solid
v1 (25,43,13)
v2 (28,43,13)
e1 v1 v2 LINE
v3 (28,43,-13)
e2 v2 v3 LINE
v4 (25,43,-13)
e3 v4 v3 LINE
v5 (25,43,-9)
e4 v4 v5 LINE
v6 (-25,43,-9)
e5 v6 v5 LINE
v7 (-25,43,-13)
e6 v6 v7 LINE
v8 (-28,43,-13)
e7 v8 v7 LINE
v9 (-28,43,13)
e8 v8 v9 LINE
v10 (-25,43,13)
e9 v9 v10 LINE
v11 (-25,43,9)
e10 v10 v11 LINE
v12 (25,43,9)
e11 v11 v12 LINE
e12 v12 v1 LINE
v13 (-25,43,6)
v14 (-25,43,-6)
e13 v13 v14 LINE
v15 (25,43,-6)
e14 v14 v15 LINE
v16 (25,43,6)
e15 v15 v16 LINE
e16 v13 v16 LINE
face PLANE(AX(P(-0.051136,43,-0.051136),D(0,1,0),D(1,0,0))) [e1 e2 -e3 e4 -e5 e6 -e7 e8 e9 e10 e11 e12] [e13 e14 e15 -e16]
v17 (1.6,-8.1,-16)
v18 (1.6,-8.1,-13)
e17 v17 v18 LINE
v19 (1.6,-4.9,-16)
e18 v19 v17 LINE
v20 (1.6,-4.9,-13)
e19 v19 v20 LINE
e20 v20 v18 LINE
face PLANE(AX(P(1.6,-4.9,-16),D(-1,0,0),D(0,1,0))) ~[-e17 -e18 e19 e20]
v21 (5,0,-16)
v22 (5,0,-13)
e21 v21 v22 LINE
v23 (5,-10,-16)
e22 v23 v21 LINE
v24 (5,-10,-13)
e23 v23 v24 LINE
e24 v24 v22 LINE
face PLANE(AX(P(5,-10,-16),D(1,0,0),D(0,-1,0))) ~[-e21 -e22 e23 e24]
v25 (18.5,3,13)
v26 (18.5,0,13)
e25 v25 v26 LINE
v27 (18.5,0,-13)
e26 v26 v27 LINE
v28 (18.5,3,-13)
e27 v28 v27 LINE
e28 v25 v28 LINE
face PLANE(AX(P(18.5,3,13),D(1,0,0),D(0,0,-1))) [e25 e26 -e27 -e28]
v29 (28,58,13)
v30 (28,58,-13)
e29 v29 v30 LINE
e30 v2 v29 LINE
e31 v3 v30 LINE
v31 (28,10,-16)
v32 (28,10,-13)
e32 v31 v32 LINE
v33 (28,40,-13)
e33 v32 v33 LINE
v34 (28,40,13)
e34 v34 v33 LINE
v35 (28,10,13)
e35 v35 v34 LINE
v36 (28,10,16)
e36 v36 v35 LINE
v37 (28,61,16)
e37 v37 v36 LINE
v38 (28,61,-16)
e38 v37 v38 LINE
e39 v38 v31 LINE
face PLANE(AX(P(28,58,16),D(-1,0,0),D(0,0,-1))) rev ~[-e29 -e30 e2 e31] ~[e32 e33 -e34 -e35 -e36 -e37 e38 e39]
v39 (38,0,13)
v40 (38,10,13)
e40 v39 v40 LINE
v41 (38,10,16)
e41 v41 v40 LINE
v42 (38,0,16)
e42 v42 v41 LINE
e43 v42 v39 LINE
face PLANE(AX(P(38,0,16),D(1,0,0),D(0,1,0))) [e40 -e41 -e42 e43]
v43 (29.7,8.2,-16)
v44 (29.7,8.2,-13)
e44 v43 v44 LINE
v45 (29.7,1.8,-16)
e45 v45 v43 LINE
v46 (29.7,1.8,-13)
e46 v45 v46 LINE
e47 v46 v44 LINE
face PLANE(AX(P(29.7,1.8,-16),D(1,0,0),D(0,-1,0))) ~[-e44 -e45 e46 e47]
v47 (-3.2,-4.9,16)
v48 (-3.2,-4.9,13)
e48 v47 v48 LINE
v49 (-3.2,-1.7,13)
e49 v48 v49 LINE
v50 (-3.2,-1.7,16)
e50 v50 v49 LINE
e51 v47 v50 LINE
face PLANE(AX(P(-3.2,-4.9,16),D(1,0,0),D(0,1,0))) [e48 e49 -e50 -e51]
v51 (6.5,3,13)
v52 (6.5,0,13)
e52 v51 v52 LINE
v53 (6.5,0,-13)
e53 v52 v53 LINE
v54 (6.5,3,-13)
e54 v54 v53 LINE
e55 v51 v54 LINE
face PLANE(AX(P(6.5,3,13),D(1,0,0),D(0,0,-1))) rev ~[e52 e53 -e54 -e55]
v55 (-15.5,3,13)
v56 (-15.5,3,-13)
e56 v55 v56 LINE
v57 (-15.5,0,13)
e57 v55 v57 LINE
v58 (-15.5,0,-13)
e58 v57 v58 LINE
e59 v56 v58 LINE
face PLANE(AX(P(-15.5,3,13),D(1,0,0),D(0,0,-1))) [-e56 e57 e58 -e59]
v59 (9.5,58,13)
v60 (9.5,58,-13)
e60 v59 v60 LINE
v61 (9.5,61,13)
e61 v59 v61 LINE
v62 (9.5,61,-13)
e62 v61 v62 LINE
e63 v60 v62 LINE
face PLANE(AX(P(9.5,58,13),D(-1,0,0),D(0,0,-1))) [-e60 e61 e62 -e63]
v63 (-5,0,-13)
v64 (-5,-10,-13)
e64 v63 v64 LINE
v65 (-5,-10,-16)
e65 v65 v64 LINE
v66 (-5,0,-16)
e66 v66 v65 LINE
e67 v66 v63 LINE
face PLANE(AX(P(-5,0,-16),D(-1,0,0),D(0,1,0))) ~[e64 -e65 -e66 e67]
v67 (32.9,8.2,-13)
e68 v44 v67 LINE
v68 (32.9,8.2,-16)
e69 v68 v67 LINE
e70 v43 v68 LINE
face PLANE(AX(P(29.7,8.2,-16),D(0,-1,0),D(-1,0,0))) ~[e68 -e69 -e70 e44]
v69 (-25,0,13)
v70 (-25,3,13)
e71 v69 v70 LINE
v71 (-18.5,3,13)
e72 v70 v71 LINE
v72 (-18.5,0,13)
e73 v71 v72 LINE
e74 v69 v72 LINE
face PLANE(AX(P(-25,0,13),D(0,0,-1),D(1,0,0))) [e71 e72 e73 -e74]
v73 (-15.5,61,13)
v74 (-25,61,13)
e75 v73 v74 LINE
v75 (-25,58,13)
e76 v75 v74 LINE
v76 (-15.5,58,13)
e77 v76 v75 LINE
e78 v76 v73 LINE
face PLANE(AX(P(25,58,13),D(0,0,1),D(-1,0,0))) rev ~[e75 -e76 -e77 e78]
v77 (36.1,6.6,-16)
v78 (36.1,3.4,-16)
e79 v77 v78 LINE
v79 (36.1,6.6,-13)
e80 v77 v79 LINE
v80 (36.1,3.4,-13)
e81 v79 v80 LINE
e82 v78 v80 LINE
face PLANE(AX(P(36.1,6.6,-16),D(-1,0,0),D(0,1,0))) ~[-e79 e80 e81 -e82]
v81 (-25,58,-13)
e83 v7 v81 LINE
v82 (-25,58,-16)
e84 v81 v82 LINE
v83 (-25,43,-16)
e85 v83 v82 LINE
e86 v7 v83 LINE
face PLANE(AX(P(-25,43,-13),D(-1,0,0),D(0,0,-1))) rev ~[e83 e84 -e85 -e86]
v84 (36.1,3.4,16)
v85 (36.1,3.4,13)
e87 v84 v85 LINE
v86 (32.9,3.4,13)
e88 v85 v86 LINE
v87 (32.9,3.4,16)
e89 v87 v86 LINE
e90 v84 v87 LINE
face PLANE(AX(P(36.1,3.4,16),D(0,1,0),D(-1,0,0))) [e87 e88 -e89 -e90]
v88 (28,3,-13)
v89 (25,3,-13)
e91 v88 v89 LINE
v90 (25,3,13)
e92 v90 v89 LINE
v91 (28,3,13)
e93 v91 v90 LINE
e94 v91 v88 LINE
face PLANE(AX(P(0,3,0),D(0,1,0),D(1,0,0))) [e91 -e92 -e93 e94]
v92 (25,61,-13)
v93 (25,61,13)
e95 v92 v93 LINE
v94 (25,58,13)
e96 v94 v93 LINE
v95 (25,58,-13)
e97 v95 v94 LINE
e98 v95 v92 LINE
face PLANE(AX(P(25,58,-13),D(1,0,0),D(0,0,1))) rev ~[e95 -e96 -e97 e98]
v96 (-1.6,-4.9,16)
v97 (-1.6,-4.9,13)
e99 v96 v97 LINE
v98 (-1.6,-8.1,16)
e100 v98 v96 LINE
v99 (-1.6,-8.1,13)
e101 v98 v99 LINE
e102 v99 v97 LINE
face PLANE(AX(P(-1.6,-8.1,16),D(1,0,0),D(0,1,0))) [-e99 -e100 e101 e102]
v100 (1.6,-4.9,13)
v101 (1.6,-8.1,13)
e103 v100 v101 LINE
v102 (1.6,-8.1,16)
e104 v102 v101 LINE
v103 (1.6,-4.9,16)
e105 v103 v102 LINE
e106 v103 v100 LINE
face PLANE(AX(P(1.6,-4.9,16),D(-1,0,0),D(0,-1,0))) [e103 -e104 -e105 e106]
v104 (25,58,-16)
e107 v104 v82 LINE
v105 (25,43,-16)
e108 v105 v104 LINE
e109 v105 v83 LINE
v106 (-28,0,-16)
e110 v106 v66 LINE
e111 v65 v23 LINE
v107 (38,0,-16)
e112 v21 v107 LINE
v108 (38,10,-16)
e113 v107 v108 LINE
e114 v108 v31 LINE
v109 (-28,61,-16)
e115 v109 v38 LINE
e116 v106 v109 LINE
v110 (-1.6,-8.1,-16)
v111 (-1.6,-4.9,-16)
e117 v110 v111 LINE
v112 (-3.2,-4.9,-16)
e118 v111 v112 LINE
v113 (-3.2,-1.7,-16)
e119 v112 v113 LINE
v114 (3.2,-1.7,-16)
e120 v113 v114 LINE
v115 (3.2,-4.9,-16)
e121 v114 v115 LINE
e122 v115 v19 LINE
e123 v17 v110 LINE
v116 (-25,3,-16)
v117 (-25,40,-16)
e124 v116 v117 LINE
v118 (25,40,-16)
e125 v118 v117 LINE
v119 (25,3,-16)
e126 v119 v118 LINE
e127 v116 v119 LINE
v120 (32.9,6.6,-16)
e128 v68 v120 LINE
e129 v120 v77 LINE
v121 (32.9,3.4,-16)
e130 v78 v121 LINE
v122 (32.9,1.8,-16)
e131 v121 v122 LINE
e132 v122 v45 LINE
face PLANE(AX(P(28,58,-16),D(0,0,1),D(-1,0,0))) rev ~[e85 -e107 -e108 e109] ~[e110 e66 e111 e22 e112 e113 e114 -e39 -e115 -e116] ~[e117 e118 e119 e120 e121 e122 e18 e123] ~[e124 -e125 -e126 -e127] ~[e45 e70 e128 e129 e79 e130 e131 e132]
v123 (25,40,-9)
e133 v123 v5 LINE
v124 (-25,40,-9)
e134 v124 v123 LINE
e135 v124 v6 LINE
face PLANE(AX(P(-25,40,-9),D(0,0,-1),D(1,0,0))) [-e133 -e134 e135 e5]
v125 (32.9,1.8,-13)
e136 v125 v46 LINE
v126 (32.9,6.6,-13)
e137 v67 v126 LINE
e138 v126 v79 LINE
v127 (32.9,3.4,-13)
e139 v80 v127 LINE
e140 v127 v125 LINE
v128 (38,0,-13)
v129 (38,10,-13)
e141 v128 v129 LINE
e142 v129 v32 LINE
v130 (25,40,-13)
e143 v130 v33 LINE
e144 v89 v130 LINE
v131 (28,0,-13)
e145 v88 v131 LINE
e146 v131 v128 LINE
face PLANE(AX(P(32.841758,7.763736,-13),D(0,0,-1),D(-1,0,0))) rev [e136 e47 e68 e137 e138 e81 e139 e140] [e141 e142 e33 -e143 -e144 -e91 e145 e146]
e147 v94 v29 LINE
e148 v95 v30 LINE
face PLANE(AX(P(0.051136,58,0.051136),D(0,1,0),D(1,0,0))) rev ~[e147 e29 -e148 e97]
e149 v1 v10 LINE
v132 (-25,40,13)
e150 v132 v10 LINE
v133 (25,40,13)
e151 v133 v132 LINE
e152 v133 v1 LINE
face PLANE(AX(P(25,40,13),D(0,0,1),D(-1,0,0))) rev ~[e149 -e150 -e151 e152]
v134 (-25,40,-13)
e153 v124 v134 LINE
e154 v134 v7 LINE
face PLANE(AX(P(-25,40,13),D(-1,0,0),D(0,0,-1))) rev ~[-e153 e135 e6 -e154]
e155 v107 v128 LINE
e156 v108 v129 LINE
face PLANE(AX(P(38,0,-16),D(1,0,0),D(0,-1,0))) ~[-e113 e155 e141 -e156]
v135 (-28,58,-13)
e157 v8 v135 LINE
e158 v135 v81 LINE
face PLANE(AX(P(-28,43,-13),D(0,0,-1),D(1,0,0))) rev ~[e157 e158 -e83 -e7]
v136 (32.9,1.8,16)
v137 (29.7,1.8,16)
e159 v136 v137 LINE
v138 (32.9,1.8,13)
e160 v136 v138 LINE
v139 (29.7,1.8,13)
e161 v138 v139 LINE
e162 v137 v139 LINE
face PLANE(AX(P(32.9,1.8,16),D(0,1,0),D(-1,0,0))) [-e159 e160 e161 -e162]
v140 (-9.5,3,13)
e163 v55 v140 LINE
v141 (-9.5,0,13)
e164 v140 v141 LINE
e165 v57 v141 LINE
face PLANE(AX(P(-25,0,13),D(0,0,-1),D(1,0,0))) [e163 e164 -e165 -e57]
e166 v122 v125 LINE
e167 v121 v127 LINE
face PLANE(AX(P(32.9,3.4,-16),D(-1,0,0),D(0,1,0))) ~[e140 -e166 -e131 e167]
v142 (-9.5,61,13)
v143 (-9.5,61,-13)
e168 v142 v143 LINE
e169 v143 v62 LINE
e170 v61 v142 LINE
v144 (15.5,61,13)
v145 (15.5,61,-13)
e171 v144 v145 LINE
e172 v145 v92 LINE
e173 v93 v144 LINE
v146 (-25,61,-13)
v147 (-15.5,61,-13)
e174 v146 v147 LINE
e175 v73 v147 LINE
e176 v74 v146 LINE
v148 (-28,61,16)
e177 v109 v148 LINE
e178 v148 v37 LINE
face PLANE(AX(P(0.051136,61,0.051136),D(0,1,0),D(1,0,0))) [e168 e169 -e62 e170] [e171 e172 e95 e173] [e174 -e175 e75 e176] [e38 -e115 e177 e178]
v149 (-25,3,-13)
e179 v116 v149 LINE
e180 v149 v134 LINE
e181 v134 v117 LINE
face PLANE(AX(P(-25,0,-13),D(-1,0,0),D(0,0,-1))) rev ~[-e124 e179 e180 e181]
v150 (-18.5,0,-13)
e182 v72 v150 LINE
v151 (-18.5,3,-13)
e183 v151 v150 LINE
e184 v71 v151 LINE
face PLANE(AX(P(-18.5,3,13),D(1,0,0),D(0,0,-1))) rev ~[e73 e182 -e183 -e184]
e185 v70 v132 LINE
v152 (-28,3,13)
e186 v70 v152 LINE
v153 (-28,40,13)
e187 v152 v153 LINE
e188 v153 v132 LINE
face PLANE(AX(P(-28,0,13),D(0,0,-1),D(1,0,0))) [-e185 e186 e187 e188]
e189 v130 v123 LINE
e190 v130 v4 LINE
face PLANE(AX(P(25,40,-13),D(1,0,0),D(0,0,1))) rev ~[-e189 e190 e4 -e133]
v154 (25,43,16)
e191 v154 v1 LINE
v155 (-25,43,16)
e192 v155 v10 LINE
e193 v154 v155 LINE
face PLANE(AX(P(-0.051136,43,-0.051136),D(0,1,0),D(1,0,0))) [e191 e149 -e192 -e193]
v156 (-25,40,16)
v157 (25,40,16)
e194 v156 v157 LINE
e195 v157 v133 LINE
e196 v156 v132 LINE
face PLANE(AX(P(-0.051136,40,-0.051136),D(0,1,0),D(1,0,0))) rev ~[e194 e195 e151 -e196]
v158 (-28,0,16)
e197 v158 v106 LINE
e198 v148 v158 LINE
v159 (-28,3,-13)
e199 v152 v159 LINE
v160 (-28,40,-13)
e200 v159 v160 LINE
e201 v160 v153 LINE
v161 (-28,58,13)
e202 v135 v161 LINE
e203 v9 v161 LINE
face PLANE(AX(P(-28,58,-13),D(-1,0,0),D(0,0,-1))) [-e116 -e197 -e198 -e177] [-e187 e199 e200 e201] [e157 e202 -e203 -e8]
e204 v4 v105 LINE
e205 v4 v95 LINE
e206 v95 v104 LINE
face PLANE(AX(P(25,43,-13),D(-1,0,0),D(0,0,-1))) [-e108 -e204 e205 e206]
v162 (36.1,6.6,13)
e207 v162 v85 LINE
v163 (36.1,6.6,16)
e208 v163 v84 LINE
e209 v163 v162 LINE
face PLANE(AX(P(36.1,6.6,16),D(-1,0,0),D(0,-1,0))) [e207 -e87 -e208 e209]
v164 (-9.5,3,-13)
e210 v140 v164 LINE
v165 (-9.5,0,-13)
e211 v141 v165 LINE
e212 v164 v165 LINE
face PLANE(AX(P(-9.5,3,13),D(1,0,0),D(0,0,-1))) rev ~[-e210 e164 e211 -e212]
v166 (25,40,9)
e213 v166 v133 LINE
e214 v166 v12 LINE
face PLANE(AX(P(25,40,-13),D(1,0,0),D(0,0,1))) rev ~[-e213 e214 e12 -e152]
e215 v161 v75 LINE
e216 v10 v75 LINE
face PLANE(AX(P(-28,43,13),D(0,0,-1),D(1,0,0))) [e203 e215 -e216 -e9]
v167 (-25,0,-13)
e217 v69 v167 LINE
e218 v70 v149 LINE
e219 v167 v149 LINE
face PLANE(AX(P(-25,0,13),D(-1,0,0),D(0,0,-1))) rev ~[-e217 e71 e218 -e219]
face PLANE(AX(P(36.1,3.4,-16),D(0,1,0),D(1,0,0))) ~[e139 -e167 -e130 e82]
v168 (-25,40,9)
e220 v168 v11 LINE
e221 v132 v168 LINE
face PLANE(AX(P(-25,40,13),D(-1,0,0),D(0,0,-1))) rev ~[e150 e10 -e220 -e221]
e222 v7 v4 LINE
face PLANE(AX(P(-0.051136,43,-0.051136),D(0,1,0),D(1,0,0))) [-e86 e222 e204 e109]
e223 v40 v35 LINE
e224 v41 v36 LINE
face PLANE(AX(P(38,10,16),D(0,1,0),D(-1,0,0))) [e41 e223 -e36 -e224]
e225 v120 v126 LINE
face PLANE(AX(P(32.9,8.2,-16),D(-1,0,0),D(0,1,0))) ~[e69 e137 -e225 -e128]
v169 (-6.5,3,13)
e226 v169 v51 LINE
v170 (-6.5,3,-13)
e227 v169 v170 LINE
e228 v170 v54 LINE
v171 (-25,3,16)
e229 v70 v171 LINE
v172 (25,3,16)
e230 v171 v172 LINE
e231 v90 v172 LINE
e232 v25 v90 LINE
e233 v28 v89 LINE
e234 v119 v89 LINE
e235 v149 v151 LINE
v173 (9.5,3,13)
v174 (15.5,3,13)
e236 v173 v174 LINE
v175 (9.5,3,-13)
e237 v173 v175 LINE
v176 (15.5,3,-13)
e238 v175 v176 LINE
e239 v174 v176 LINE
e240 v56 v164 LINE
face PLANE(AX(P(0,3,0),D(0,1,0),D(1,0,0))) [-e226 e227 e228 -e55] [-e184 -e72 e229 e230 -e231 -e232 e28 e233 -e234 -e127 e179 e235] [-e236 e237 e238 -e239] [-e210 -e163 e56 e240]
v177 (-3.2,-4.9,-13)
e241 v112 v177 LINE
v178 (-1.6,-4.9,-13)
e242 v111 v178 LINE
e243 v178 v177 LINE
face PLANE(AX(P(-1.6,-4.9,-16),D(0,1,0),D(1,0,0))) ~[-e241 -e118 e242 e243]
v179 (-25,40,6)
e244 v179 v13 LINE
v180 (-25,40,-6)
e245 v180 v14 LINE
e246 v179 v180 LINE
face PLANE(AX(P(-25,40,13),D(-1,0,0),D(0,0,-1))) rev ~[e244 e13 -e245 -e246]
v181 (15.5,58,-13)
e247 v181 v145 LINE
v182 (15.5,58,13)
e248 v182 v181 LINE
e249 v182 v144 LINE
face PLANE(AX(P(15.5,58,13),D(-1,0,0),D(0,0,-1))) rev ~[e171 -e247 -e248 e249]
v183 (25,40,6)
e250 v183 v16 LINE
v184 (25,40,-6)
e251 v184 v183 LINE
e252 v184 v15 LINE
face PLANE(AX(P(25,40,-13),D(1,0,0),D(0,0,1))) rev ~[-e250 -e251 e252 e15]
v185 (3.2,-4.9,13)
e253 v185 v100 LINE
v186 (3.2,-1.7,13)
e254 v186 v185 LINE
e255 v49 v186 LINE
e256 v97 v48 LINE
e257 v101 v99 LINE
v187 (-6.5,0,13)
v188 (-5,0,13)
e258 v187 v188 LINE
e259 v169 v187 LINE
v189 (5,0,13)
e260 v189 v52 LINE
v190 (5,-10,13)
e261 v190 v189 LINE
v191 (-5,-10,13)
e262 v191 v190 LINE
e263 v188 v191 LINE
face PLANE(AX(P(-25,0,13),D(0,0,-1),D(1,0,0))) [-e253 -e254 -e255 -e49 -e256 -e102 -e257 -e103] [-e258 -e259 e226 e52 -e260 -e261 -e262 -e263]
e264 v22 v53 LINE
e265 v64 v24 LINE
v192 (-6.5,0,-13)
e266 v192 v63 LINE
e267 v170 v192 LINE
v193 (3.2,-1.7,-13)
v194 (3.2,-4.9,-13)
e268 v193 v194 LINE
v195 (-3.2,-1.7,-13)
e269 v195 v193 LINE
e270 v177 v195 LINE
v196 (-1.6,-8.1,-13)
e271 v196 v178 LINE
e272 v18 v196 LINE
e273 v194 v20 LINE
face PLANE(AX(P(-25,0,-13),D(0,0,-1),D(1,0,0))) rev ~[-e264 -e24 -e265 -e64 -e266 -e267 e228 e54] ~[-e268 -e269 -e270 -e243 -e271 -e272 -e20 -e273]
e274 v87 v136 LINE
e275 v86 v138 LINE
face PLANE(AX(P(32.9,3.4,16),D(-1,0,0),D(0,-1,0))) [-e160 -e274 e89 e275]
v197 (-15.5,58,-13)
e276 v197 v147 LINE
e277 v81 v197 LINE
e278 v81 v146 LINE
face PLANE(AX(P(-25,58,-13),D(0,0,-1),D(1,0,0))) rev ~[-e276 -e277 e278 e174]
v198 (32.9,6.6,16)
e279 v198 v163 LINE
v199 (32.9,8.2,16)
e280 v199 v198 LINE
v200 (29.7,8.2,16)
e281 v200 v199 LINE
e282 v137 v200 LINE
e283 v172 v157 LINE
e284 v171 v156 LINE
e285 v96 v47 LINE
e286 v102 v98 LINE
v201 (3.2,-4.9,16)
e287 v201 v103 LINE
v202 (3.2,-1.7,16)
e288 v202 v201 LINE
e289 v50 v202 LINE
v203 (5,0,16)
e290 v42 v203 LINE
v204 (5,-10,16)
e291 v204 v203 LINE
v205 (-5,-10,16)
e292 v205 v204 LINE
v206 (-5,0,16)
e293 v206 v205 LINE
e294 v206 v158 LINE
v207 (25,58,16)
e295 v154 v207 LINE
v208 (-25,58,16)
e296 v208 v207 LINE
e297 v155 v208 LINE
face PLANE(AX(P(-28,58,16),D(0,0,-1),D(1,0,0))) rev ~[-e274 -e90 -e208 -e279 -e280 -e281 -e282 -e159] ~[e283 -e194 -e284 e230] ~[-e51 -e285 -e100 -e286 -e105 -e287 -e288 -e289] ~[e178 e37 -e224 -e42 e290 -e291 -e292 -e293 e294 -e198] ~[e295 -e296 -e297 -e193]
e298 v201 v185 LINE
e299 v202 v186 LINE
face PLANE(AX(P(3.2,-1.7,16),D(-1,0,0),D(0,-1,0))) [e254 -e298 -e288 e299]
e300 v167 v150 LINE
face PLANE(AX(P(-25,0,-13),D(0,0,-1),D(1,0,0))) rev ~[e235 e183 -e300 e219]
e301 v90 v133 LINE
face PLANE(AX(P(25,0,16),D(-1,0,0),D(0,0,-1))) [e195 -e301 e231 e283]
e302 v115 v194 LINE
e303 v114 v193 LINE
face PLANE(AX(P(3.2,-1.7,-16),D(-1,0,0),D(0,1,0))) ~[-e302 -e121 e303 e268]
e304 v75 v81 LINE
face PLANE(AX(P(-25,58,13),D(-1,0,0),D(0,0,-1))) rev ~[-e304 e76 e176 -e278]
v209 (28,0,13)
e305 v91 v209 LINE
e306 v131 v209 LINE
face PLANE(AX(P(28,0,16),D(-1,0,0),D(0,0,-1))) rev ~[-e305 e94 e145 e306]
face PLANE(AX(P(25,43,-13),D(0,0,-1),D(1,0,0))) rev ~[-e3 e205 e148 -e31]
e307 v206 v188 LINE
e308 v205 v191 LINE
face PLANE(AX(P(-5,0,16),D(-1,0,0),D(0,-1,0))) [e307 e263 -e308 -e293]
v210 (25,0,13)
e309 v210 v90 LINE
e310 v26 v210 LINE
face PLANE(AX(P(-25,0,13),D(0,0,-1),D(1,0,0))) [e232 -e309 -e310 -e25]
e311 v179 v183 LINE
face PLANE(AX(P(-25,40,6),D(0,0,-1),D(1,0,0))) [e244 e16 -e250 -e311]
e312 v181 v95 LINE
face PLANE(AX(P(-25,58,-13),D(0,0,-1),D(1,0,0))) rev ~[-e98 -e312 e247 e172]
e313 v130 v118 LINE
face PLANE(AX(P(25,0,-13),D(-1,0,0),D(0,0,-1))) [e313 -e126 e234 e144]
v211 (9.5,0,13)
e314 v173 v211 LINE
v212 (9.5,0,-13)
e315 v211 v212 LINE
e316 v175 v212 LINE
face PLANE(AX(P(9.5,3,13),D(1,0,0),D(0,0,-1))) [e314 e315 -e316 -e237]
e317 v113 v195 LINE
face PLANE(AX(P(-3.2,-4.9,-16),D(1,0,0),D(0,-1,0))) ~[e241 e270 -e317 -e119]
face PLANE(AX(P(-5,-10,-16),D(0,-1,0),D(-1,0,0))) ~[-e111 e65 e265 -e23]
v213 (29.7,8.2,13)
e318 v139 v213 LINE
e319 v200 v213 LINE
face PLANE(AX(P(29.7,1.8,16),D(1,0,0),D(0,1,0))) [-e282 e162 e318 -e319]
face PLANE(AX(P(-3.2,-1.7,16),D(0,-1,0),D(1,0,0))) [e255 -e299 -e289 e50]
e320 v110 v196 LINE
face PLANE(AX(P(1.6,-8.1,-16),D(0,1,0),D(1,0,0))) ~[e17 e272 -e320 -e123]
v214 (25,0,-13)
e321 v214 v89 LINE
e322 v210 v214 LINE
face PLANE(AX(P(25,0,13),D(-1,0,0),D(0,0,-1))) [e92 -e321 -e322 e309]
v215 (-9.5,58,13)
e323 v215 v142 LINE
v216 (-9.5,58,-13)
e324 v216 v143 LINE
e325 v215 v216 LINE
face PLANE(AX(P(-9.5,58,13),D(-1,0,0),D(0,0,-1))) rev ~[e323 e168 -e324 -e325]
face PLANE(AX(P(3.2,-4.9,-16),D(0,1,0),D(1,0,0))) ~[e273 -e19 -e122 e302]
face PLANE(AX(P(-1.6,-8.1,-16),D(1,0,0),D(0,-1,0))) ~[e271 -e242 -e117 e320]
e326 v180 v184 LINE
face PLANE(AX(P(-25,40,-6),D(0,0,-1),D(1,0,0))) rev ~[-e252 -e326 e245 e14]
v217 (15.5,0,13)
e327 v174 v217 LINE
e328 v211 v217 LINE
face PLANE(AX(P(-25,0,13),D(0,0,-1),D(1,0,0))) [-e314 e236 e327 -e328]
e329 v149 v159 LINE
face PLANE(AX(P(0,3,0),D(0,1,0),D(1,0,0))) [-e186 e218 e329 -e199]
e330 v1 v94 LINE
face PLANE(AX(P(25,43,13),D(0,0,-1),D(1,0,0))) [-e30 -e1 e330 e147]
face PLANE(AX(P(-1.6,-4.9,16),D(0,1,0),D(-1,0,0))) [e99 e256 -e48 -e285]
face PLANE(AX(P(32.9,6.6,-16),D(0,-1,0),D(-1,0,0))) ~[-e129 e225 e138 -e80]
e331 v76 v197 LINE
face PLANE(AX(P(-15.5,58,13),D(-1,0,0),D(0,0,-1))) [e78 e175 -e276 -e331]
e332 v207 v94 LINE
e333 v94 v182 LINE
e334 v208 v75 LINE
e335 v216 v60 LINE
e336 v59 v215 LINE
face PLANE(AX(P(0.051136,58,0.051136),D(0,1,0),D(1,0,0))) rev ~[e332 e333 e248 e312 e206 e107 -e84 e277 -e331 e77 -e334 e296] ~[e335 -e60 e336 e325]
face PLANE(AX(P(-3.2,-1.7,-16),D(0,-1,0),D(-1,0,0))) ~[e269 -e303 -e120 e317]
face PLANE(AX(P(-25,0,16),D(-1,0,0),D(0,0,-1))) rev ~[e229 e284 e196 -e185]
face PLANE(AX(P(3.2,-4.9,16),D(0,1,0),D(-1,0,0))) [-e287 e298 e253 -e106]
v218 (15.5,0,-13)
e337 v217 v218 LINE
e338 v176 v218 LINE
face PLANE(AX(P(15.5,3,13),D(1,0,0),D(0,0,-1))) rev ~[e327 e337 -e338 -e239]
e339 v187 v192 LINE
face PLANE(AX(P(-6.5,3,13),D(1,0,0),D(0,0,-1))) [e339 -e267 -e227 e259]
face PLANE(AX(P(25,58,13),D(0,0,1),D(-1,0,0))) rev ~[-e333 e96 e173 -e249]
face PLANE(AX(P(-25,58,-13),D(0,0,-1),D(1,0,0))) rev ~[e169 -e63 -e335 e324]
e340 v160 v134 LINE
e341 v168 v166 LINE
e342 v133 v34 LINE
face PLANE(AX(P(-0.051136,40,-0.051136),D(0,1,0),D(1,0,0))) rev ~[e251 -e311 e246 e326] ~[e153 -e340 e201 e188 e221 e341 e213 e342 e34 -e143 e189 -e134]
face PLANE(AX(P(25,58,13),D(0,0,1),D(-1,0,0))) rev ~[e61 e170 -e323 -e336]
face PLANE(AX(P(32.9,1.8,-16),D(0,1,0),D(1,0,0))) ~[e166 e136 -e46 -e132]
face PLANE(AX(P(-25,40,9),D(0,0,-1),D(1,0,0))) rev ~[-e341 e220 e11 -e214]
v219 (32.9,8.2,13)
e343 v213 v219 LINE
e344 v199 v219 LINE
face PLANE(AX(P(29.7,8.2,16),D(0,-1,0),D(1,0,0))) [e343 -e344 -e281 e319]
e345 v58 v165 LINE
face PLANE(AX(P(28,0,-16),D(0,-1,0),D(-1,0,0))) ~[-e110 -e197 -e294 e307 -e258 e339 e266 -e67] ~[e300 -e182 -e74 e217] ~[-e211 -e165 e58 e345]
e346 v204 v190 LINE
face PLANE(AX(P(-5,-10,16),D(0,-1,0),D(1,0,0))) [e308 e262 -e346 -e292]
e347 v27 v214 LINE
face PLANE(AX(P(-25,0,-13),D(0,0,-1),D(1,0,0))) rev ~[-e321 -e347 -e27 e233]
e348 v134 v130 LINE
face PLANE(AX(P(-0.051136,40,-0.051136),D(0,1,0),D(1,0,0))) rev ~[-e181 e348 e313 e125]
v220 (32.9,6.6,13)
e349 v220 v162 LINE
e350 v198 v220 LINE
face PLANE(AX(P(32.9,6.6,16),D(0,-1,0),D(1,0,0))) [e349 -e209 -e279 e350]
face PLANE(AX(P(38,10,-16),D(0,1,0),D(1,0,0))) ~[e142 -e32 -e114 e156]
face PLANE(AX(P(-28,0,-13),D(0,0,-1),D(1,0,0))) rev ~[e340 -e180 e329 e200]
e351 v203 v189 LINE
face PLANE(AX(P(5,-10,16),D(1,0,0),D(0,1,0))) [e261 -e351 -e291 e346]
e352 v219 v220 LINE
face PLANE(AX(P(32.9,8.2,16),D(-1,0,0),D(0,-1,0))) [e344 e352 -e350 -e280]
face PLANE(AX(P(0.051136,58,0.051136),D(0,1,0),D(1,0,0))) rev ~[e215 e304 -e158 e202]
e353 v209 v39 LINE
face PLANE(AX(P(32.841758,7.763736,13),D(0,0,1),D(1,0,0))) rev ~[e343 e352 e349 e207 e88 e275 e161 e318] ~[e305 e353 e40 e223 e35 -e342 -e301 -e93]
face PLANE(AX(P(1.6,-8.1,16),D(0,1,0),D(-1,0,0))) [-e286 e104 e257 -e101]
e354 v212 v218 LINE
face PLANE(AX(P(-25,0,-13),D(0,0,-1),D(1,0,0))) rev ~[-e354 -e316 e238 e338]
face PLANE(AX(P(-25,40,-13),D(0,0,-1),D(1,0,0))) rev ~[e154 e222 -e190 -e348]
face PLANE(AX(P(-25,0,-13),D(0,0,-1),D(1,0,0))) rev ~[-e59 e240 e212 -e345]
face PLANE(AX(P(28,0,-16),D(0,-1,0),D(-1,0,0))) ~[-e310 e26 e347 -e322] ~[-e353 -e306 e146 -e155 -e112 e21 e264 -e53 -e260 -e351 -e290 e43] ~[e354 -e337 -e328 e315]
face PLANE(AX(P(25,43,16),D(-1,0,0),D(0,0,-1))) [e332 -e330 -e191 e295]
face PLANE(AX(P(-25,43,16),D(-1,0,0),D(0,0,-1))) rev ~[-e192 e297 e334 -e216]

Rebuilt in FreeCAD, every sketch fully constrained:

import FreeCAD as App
import Part
import Sketcher

V = App.Vector
Q = App.Units.Quantity

doc = App.newDocument("Part")
body = doc.addObject("PartDesign::Body", "Body")

# Sketch on XZ plane
sketch1 = body.newObject("Sketcher::SketchObject", "Sketch")
sketch1.AttachmentSupport = (doc.getObject("XZ_Plane"), [""])
sketch1.MapMode = "FlatFace"
sketch1.addGeometry([
    Part.LineSegment(V(-28, -16, 0), V(-28, 16, 0)),  # 0
    Part.LineSegment(V(-28, 16, 0), V(28, 16, 0)),  # 1
    Part.LineSegment(V(28, 16, 0), V(28, -16, 0)),  # 2
    Part.LineSegment(V(28, -16, 0), V(-28, -16, 0)),  # 3
    Part.LineSegment(V(25, 13, 0), V(-25, 13, 0)),  # 4
    Part.LineSegment(V(-25, 13, 0), V(-25, -13, 0)),  # 5
    Part.LineSegment(V(-25, -13, 0), V(25, -13, 0)),  # 6
    Part.LineSegment(V(25, -13, 0), V(25, 13, 0)),  # 7
], False)
sketch1.addConstraint([
    Sketcher.Constraint("Coincident", 0, 2, 1, 1),
    Sketcher.Constraint("Coincident", 1, 2, 2, 1),
    Sketcher.Constraint("Coincident", 2, 2, 3, 1),
    Sketcher.Constraint("Coincident", 3, 2, 0, 1),
    Sketcher.Constraint("Coincident", 4, 2, 5, 1),
    Sketcher.Constraint("Coincident", 5, 2, 6, 1),
    Sketcher.Constraint("Coincident", 6, 2, 7, 1),
    Sketcher.Constraint("Coincident", 7, 2, 4, 1),
    Sketcher.Constraint("Vertical", 0),
    Sketcher.Constraint("Horizontal", 1),
    Sketcher.Constraint("Vertical", 2),
    Sketcher.Constraint("Horizontal", 3),
    Sketcher.Constraint("Horizontal", 4),
    Sketcher.Constraint("Vertical", 5),
    Sketcher.Constraint("Horizontal", 6),
    Sketcher.Constraint("Vertical", 7),
    Sketcher.Constraint("Symmetric", 0, 2, 2, 2, -1, 1),
    Sketcher.Constraint("Symmetric", 4, 2, 6, 2, -1, 1),
    Sketcher.Constraint("DistanceX", 1, 1, 1, 2, Q("56 mm")),
    Sketcher.Constraint("DistanceX", 4, 2, 4, 1, Q("50 mm")),
    Sketcher.Constraint("DistanceY", 0, 1, 0, 2, Q("32 mm")),
    Sketcher.Constraint("DistanceY", 5, 2, 5, 1, Q("26 mm")),
])
pad1 = body.newObject("PartDesign::Pad", "Pad")
pad1.Profile = sketch1
pad1.Length = 3
pad1.Reversed = True

# Sketch on XZ plane
sketch2 = body.newObject("Sketcher::SketchObject", "Sketch001")
sketch2.AttachmentSupport = (doc.getObject("XZ_Plane"), [""])
sketch2.MapMode = "FlatFace"
sketch2.addGeometry([
    Part.LineSegment(V(25, -16, 0), V(25, -13, 0)),  # 0
    Part.LineSegment(V(25, -13, 0), V(28, -13, 0)),  # 1
    Part.LineSegment(V(28, -13, 0), V(28, -16, 0)),  # 2
    Part.LineSegment(V(28, -16, 0), V(25, -16, 0)),  # 3
    Part.LineSegment(V(25, 13, 0), V(25, 16, 0)),  # 4
    Part.LineSegment(V(25, 16, 0), V(28, 16, 0)),  # 5
    Part.LineSegment(V(28, 16, 0), V(28, 13, 0)),  # 6
    Part.LineSegment(V(28, 13, 0), V(25, 13, 0)),  # 7
    Part.LineSegment(V(-28, 13, 0), V(-28, 16, 0)),  # 8
    Part.LineSegment(V(-28, 16, 0), V(-25, 16, 0)),  # 9
    Part.LineSegment(V(-25, 16, 0), V(-25, 13, 0)),  # 10
    Part.LineSegment(V(-25, 13, 0), V(-28, 13, 0)),  # 11
    Part.LineSegment(V(-28, -16, 0), V(-28, -13, 0)),  # 12
    Part.LineSegment(V(-28, -13, 0), V(-25, -13, 0)),  # 13
    Part.LineSegment(V(-25, -13, 0), V(-25, -16, 0)),  # 14
    Part.LineSegment(V(-25, -16, 0), V(-28, -16, 0)),  # 15
], False)
sketch2.addConstraint([
    Sketcher.Constraint("Coincident", 0, 2, 1, 1),
    Sketcher.Constraint("Coincident", 1, 2, 2, 1),
    Sketcher.Constraint("Coincident", 2, 2, 3, 1),
    Sketcher.Constraint("Coincident", 3, 2, 0, 1),
    Sketcher.Constraint("Coincident", 4, 2, 5, 1),
    Sketcher.Constraint("Coincident", 5, 2, 6, 1),
    Sketcher.Constraint("Coincident", 6, 2, 7, 1),
    Sketcher.Constraint("Coincident", 7, 2, 4, 1),
    Sketcher.Constraint("Coincident", 8, 2, 9, 1),
    Sketcher.Constraint("Coincident", 9, 2, 10, 1),
    Sketcher.Constraint("Coincident", 10, 2, 11, 1),
    Sketcher.Constraint("Coincident", 11, 2, 8, 1),
    Sketcher.Constraint("Coincident", 12, 2, 13, 1),
    Sketcher.Constraint("Coincident", 13, 2, 14, 1),
    Sketcher.Constraint("Coincident", 14, 2, 15, 1),
    Sketcher.Constraint("Coincident", 15, 2, 12, 1),
    Sketcher.Constraint("Vertical", 0),
    Sketcher.Constraint("Horizontal", 1),
    Sketcher.Constraint("Vertical", 2),
    Sketcher.Constraint("Horizontal", 3),
    Sketcher.Constraint("Vertical", 4),
    Sketcher.Constraint("Horizontal", 5),
    Sketcher.Constraint("Vertical", 6),
    Sketcher.Constraint("Horizontal", 7),
    Sketcher.Constraint("Vertical", 8),
    Sketcher.Constraint("Horizontal", 9),
    Sketcher.Constraint("Vertical", 10),
    Sketcher.Constraint("Horizontal", 11),
    Sketcher.Constraint("Vertical", 12),
    Sketcher.Constraint("Horizontal", 13),
    Sketcher.Constraint("Vertical", 14),
    Sketcher.Constraint("Horizontal", 15),
    Sketcher.Constraint("Symmetric", 2, 2, 8, 2, -1, 1),
    Sketcher.Constraint("Symmetric", 0, 2, 10, 2, -1, 1),
    Sketcher.Constraint("Symmetric", 6, 2, 12, 2, -1, 1),
    Sketcher.Constraint("Symmetric", 4, 2, 14, 2, -1, 1),
    Sketcher.Constraint("Symmetric", 5, 2, 8, 2, -2),
    Sketcher.Constraint("Symmetric", 7, 2, 10, 2, -2),
    Sketcher.Constraint("Equal", 15, 0),
    Sketcher.Constraint("DistanceX", 1, 1, 1, 2, Q("3 mm")),
    Sketcher.Constraint("DistanceX", -1, 1, 0, 2, Q("25 mm")),
    Sketcher.Constraint("DistanceY", 0, 2, -1, 1, Q("13 mm")),
])
pad2 = body.newObject("PartDesign::Pad", "Pad001")
pad2.Profile = sketch2
pad2.Length = 40
pad2.Reversed = True

# Sketch on XY plane
sketch3 = body.newObject("Sketcher::SketchObject", "Sketch002")
sketch3.AttachmentSupport = (doc.getObject("XY_Plane"), [""])
sketch3.MapMode = "FlatFace"
sketch3.AttachmentOffset = App.Placement(V(0, 0, 16), App.Rotation())
sketch3.addGeometry([
    Part.LineSegment(V(28, 10, 0), V(28, 0, 0)),  # 0
    Part.LineSegment(V(28, 0, 0), V(38, 0, 0)),  # 1
    Part.LineSegment(V(38, 0, 0), V(38, 10, 0)),  # 2
    Part.LineSegment(V(38, 10, 0), V(28, 10, 0)),  # 3
    Part.LineSegment(V(29.7, 8.2, 0), V(32.9, 8.2, 0)),  # 4
    Part.LineSegment(V(32.9, 8.2, 0), V(32.9, 6.6, 0)),  # 5
    Part.LineSegment(V(32.9, 6.6, 0), V(36.1, 6.6, 0)),  # 6
    Part.LineSegment(V(36.1, 6.6, 0), V(36.1, 3.4, 0)),  # 7
    Part.LineSegment(V(36.1, 3.4, 0), V(32.9, 3.4, 0)),  # 8
    Part.LineSegment(V(32.9, 3.4, 0), V(32.9, 1.8, 0)),  # 9
    Part.LineSegment(V(32.9, 1.8, 0), V(29.7, 1.8, 0)),  # 10
    Part.LineSegment(V(29.7, 1.8, 0), V(29.7, 8.2, 0)),  # 11
], False)
sketch3.addConstraint([
    Sketcher.Constraint("Coincident", 0, 2, 1, 1),
    Sketcher.Constraint("Coincident", 1, 2, 2, 1),
    Sketcher.Constraint("Coincident", 2, 2, 3, 1),
    Sketcher.Constraint("Coincident", 3, 2, 0, 1),
    Sketcher.Constraint("Coincident", 4, 2, 5, 1),
    Sketcher.Constraint("Coincident", 5, 2, 6, 1),
    Sketcher.Constraint("Coincident", 6, 2, 7, 1),
    Sketcher.Constraint("Coincident", 7, 2, 8, 1),
    Sketcher.Constraint("Coincident", 8, 2, 9, 1),
    Sketcher.Constraint("Coincident", 9, 2, 10, 1),
    Sketcher.Constraint("Coincident", 10, 2, 11, 1),
    Sketcher.Constraint("Coincident", 11, 2, 4, 1),
    Sketcher.Constraint("Vertical", 0),
    Sketcher.Constraint("Horizontal", 1),
    Sketcher.Constraint("Vertical", 2),
    Sketcher.Constraint("Horizontal", 3),
    Sketcher.Constraint("Horizontal", 4),
    Sketcher.Constraint("Vertical", 5),
    Sketcher.Constraint("Horizontal", 6),
    Sketcher.Constraint("Vertical", 7),
    Sketcher.Constraint("Horizontal", 8),
    Sketcher.Constraint("Vertical", 9),
    Sketcher.Constraint("Horizontal", 10),
    Sketcher.Constraint("Vertical", 11),
    Sketcher.Constraint("PointOnObject", 0, 2, -1),
    Sketcher.Constraint("Vertical", 5, 2, 8, 2),
    Sketcher.Constraint("Equal", 4, 6),
    Sketcher.Constraint("Equal", 3, 0),
    Sketcher.Constraint("Equal", 10, 7),
    Sketcher.Constraint("Equal", 5, 9),
    Sketcher.Constraint("DistanceX", 1, 1, 1, 2, Q("10 mm")),
    Sketcher.Constraint("DistanceX", 4, 1, 4, 2, Q("3.2 mm")),
    Sketcher.Constraint("DistanceY", 5, 2, 5, 1, Q("1.6 mm")),
    Sketcher.Constraint("DistanceX", -1, 1, 0, 2, Q("28 mm")),
    Sketcher.Constraint("DistanceX", -1, 1, 4, 2, Q("32.9 mm")),
    Sketcher.Constraint("DistanceY", -1, 1, 4, 2, Q("8.2 mm")),
])
pad3 = body.newObject("PartDesign::Pad", "Pad002")
pad3.Profile = sketch3
pad3.Length = 3
pad3.Reversed = True
doc.recompute()

mirrored = body.newObject("PartDesign::Mirrored", "Mirrored")
mirrored.Originals = [pad3]
mirrored.MirrorPlane = (doc.getObject("XY_Plane"), [""])
body.Tip = mirrored

# Sketch on XY plane
sketch4 = body.newObject("Sketcher::SketchObject", "Sketch003")
sketch4.AttachmentSupport = (doc.getObject("XY_Plane"), [""])
sketch4.MapMode = "FlatFace"
sketch4.AttachmentOffset = App.Placement(V(0, 0, 16), App.Rotation())
sketch4.addGeometry([
    Part.LineSegment(V(5, 0, 0), V(-5, 0, 0)),  # 0
    Part.LineSegment(V(-5, 0, 0), V(-5, -10, 0)),  # 1
    Part.LineSegment(V(-5, -10, 0), V(5, -10, 0)),  # 2
    Part.LineSegment(V(5, -10, 0), V(5, 0, 0)),  # 3
    Part.LineSegment(V(1.6, -4.9, 0), V(1.6, -8.1, 0)),  # 4
    Part.LineSegment(V(1.6, -8.1, 0), V(-1.6, -8.1, 0)),  # 5
    Part.LineSegment(V(-1.6, -8.1, 0), V(-1.6, -4.9, 0)),  # 6
    Part.LineSegment(V(-1.6, -4.9, 0), V(-3.2, -4.9, 0)),  # 7
    Part.LineSegment(V(-3.2, -4.9, 0), V(-3.2, -1.7, 0)),  # 8
    Part.LineSegment(V(-3.2, -1.7, 0), V(3.2, -1.7, 0)),  # 9
    Part.LineSegment(V(3.2, -1.7, 0), V(3.2, -4.9, 0)),  # 10
    Part.LineSegment(V(3.2, -4.9, 0), V(1.6, -4.9, 0)),  # 11
], False)
sketch4.addConstraint([
    Sketcher.Constraint("Coincident", 0, 2, 1, 1),
    Sketcher.Constraint("Coincident", 1, 2, 2, 1),
    Sketcher.Constraint("Coincident", 2, 2, 3, 1),
    Sketcher.Constraint("Coincident", 3, 2, 0, 1),
    Sketcher.Constraint("Coincident", 4, 2, 5, 1),
    Sketcher.Constraint("Coincident", 5, 2, 6, 1),
    Sketcher.Constraint("Coincident", 6, 2, 7, 1),
    Sketcher.Constraint("Coincident", 7, 2, 8, 1),
    Sketcher.Constraint("Coincident", 8, 2, 9, 1),
    Sketcher.Constraint("Coincident", 9, 2, 10, 1),
    Sketcher.Constraint("Coincident", 10, 2, 11, 1),
    Sketcher.Constraint("Coincident", 11, 2, 4, 1),
    Sketcher.Constraint("Horizontal", 0),
    Sketcher.Constraint("Vertical", 1),
    Sketcher.Constraint("Horizontal", 2),
    Sketcher.Constraint("Vertical", 3),
    Sketcher.Constraint("Vertical", 4),
    Sketcher.Constraint("Horizontal", 5),
    Sketcher.Constraint("Vertical", 6),
    Sketcher.Constraint("Horizontal", 7),
    Sketcher.Constraint("Vertical", 8),
    Sketcher.Constraint("Horizontal", 9),
    Sketcher.Constraint("Vertical", 10),
    Sketcher.Constraint("Horizontal", 11),
    Sketcher.Constraint("Symmetric", 0, 2, 3, 2, -1, 1),
    Sketcher.Constraint("Symmetric", 7, 2, 10, 2, -2),
    Sketcher.Constraint("Equal", 7, 11),
    Sketcher.Constraint("Equal", 2, 1),
    Sketcher.Constraint("Equal", 5, 4),
    Sketcher.Constraint("Equal", 6, 8),
    Sketcher.Constraint("DistanceX", 0, 2, 0, 1, Q("10 mm")),
    Sketcher.Constraint("DistanceX", 5, 2, 5, 1, Q("3.2 mm")),
    Sketcher.Constraint("DistanceX", 7, 2, 7, 1, Q("1.6 mm")),
    Sketcher.Constraint("DistanceY", 4, 2, -1, 1, Q("8.1 mm")),
])
pad4 = body.newObject("PartDesign::Pad", "Pad003")
pad4.Profile = sketch4
pad4.Length = 3
pad4.Reversed = True
doc.recompute()

mirrored2 = body.newObject("PartDesign::Mirrored", "Mirrored001")
mirrored2.Originals = [pad4]
mirrored2.MirrorPlane = (doc.getObject("XY_Plane"), [""])
body.Tip = mirrored2

# Sketch on XZ plane
sketch5 = body.newObject("Sketcher::SketchObject", "Sketch004")
sketch5.AttachmentSupport = (doc.getObject("XZ_Plane"), [""])
sketch5.MapMode = "FlatFace"
sketch5.AttachmentOffset = App.Placement(V(0, 0, -3), App.Rotation())
sketch5.addGeometry([
    Part.LineSegment(V(-18.5, -13, 0), V(-18.5, 13, 0)),  # 0
    Part.LineSegment(V(-18.5, 13, 0), V(-15.5, 13, 0)),  # 1
    Part.LineSegment(V(-15.5, 13, 0), V(-15.5, -13, 0)),  # 2
    Part.LineSegment(V(-15.5, -13, 0), V(-18.5, -13, 0)),  # 3
    Part.LineSegment(V(-9.5, -13, 0), V(-9.5, 13, 0)),  # 4
    Part.LineSegment(V(-9.5, 13, 0), V(-6.5, 13, 0)),  # 5
    Part.LineSegment(V(-6.5, 13, 0), V(-6.5, -13, 0)),  # 6
    Part.LineSegment(V(-6.5, -13, 0), V(-9.5, -13, 0)),  # 7
    Part.LineSegment(V(6.5, -13, 0), V(6.5, 13, 0)),  # 8
    Part.LineSegment(V(6.5, 13, 0), V(9.5, 13, 0)),  # 9
    Part.LineSegment(V(9.5, 13, 0), V(9.5, -13, 0)),  # 10
    Part.LineSegment(V(9.5, -13, 0), V(6.5, -13, 0)),  # 11
    Part.LineSegment(V(15.5, -13, 0), V(15.5, 13, 0)),  # 12
    Part.LineSegment(V(15.5, 13, 0), V(18.5, 13, 0)),  # 13
    Part.LineSegment(V(18.5, 13, 0), V(18.5, -13, 0)),  # 14
    Part.LineSegment(V(18.5, -13, 0), V(15.5, -13, 0)),  # 15
], False)
sketch5.addConstraint([
    Sketcher.Constraint("Coincident", 0, 2, 1, 1),
    Sketcher.Constraint("Coincident", 1, 2, 2, 1),
    Sketcher.Constraint("Coincident", 2, 2, 3, 1),
    Sketcher.Constraint("Coincident", 3, 2, 0, 1),
    Sketcher.Constraint("Coincident", 4, 2, 5, 1),
    Sketcher.Constraint("Coincident", 5, 2, 6, 1),
    Sketcher.Constraint("Coincident", 6, 2, 7, 1),
    Sketcher.Constraint("Coincident", 7, 2, 4, 1),
    Sketcher.Constraint("Coincident", 8, 2, 9, 1),
    Sketcher.Constraint("Coincident", 9, 2, 10, 1),
    Sketcher.Constraint("Coincident", 10, 2, 11, 1),
    Sketcher.Constraint("Coincident", 11, 2, 8, 1),
    Sketcher.Constraint("Coincident", 12, 2, 13, 1),
    Sketcher.Constraint("Coincident", 13, 2, 14, 1),
    Sketcher.Constraint("Coincident", 14, 2, 15, 1),
    Sketcher.Constraint("Coincident", 15, 2, 12, 1),
    Sketcher.Constraint("Vertical", 0),
    Sketcher.Constraint("Horizontal", 1),
    Sketcher.Constraint("Vertical", 2),
    Sketcher.Constraint("Horizontal", 3),
    Sketcher.Constraint("Vertical", 4),
    Sketcher.Constraint("Horizontal", 5),
    Sketcher.Constraint("Vertical", 6),
    Sketcher.Constraint("Horizontal", 7),
    Sketcher.Constraint("Vertical", 8),
    Sketcher.Constraint("Horizontal", 9),
    Sketcher.Constraint("Vertical", 10),
    Sketcher.Constraint("Horizontal", 11),
    Sketcher.Constraint("Vertical", 12),
    Sketcher.Constraint("Horizontal", 13),
    Sketcher.Constraint("Vertical", 14),
    Sketcher.Constraint("Horizontal", 15),
    Sketcher.Constraint("Symmetric", 6, 2, 8, 2, -1, 1),
    Sketcher.Constraint("Symmetric", 4, 2, 10, 2, -1, 1),
    Sketcher.Constraint("Symmetric", 2, 2, 12, 2, -1, 1),
    Sketcher.Constraint("Symmetric", 0, 2, 14, 2, -1, 1),
    Sketcher.Constraint("Horizontal", 1, 2, 4, 2),
    Sketcher.Constraint("Horizontal", 3, 2, 6, 2),
    Sketcher.Constraint("Horizontal", 5, 2, 8, 2),
    Sketcher.Constraint("Equal", 3, 5),
    Sketcher.Constraint("DistanceX", 1, 1, 1, 2, Q("3 mm")),
    Sketcher.Constraint("DistanceY", 0, 1, 0, 2, Q("26 mm")),
    Sketcher.Constraint("DistanceX", 1, 2, 4, 2, Q("6 mm")),
    Sketcher.Constraint("DistanceX", 5, 2, 8, 2, Q("13 mm")),
])
pad5 = body.newObject("PartDesign::Pad", "Pad004")
pad5.Profile = sketch5
pad5.Length = 3

# Sketch on XZ plane
sketch6 = body.newObject("Sketcher::SketchObject", "Sketch005")
sketch6.AttachmentSupport = (doc.getObject("XZ_Plane"), [""])
sketch6.MapMode = "FlatFace"
sketch6.AttachmentOffset = App.Placement(V(0, 0, -40), App.Rotation())
sketch6.addGeometry([
    Part.LineSegment(V(28, -16, 0), V(-28, -16, 0)),  # 0
    Part.LineSegment(V(-28, -16, 0), V(-28, 16, 0)),  # 1
    Part.LineSegment(V(-28, 16, 0), V(28, 16, 0)),  # 2
    Part.LineSegment(V(28, 16, 0), V(28, -16, 0)),  # 3
    Part.LineSegment(V(25, 9, 0), V(25, 13, 0)),  # 4
    Part.LineSegment(V(25, 13, 0), V(-25, 13, 0)),  # 5
    Part.LineSegment(V(-25, 13, 0), V(-25, 9, 0)),  # 6
    Part.LineSegment(V(-25, 9, 0), V(25, 9, 0)),  # 7
    Part.LineSegment(V(25, -6, 0), V(25, 6, 0)),  # 8
    Part.LineSegment(V(25, 6, 0), V(-25, 6, 0)),  # 9
    Part.LineSegment(V(-25, 6, 0), V(-25, -6, 0)),  # 10
    Part.LineSegment(V(-25, -6, 0), V(25, -6, 0)),  # 11
    Part.LineSegment(V(25, -13, 0), V(25, -9, 0)),  # 12
    Part.LineSegment(V(25, -9, 0), V(-25, -9, 0)),  # 13
    Part.LineSegment(V(-25, -9, 0), V(-25, -13, 0)),  # 14
    Part.LineSegment(V(-25, -13, 0), V(25, -13, 0)),  # 15
], False)
sketch6.addConstraint([
    Sketcher.Constraint("Coincident", 0, 2, 1, 1),
    Sketcher.Constraint("Coincident", 1, 2, 2, 1),
    Sketcher.Constraint("Coincident", 2, 2, 3, 1),
    Sketcher.Constraint("Coincident", 3, 2, 0, 1),
    Sketcher.Constraint("Coincident", 4, 2, 5, 1),
    Sketcher.Constraint("Coincident", 5, 2, 6, 1),
    Sketcher.Constraint("Coincident", 6, 2, 7, 1),
    Sketcher.Constraint("Coincident", 7, 2, 4, 1),
    Sketcher.Constraint("Coincident", 8, 2, 9, 1),
    Sketcher.Constraint("Coincident", 9, 2, 10, 1),
    Sketcher.Constraint("Coincident", 10, 2, 11, 1),
    Sketcher.Constraint("Coincident", 11, 2, 8, 1),
    Sketcher.Constraint("Coincident", 12, 2, 13, 1),
    Sketcher.Constraint("Coincident", 13, 2, 14, 1),
    Sketcher.Constraint("Coincident", 14, 2, 15, 1),
    Sketcher.Constraint("Coincident", 15, 2, 12, 1),
    Sketcher.Constraint("Horizontal", 0),
    Sketcher.Constraint("Vertical", 1),
    Sketcher.Constraint("Horizontal", 2),
    Sketcher.Constraint("Vertical", 3),
    Sketcher.Constraint("Vertical", 4),
    Sketcher.Constraint("Horizontal", 5),
    Sketcher.Constraint("Vertical", 6),
    Sketcher.Constraint("Horizontal", 7),
    Sketcher.Constraint("Vertical", 8),
    Sketcher.Constraint("Horizontal", 9),
    Sketcher.Constraint("Vertical", 10),
    Sketcher.Constraint("Horizontal", 11),
    Sketcher.Constraint("Vertical", 12),
    Sketcher.Constraint("Horizontal", 13),
    Sketcher.Constraint("Vertical", 14),
    Sketcher.Constraint("Horizontal", 15),
    Sketcher.Constraint("Symmetric", 0, 2, 2, 2, -1, 1),
    Sketcher.Constraint("Symmetric", 8, 2, 10, 2, -1, 1),
    Sketcher.Constraint("Symmetric", 6, 2, 12, 2, -1, 1),
    Sketcher.Constraint("Symmetric", 4, 2, 14, 2, -1, 1),
    Sketcher.Constraint("Vertical", 7, 2, 8, 2),
    Sketcher.Constraint("Vertical", 6, 2, 9, 2),
    Sketcher.Constraint("DistanceX", 0, 2, 0, 1, Q("56 mm")),
    Sketcher.Constraint("DistanceX", 5, 2, 5, 1, Q("50 mm")),
    Sketcher.Constraint("DistanceY", 1, 1, 1, 2, Q("32 mm")),
    Sketcher.Constraint("DistanceY", 4, 1, 4, 2, Q("4 mm")),
    Sketcher.Constraint("DistanceY", 8, 1, 8, 2, Q("12 mm")),
    Sketcher.Constraint("DistanceY", -1, 1, 4, 2, Q("13 mm")),
])
pad6 = body.newObject("PartDesign::Pad", "Pad005")
pad6.Profile = sketch6
pad6.Length = 3
pad6.Reversed = True

# Sketch on XZ plane
sketch7 = body.newObject("Sketcher::SketchObject", "Sketch006")
sketch7.AttachmentSupport = (doc.getObject("XZ_Plane"), [""])
sketch7.MapMode = "FlatFace"
sketch7.AttachmentOffset = App.Placement(V(0, 0, -43), App.Rotation())
sketch7.addGeometry([
    Part.LineSegment(V(-28, 13, 0), V(-28, 16, 0)),  # 0
    Part.LineSegment(V(-28, 16, 0), V(-25, 16, 0)),  # 1
    Part.LineSegment(V(-25, 16, 0), V(-25, 13, 0)),  # 2
    Part.LineSegment(V(-25, 13, 0), V(-28, 13, 0)),  # 3
    Part.LineSegment(V(-28, -16, 0), V(-28, -13, 0)),  # 4
    Part.LineSegment(V(-28, -13, 0), V(-25, -13, 0)),  # 5
    Part.LineSegment(V(-25, -13, 0), V(-25, -16, 0)),  # 6
    Part.LineSegment(V(-25, -16, 0), V(-28, -16, 0)),  # 7
    Part.LineSegment(V(25, -16, 0), V(25, -13, 0)),  # 8
    Part.LineSegment(V(25, -13, 0), V(28, -13, 0)),  # 9
    Part.LineSegment(V(28, -13, 0), V(28, -16, 0)),  # 10
    Part.LineSegment(V(28, -16, 0), V(25, -16, 0)),  # 11
    Part.LineSegment(V(25, 13, 0), V(25, 16, 0)),  # 12
    Part.LineSegment(V(25, 16, 0), V(28, 16, 0)),  # 13
    Part.LineSegment(V(28, 16, 0), V(28, 13, 0)),  # 14
    Part.LineSegment(V(28, 13, 0), V(25, 13, 0)),  # 15
], False)
sketch7.addConstraint([
    Sketcher.Constraint("Coincident", 0, 2, 1, 1),
    Sketcher.Constraint("Coincident", 1, 2, 2, 1),
    Sketcher.Constraint("Coincident", 2, 2, 3, 1),
    Sketcher.Constraint("Coincident", 3, 2, 0, 1),
    Sketcher.Constraint("Coincident", 4, 2, 5, 1),
    Sketcher.Constraint("Coincident", 5, 2, 6, 1),
    Sketcher.Constraint("Coincident", 6, 2, 7, 1),
    Sketcher.Constraint("Coincident", 7, 2, 4, 1),
    Sketcher.Constraint("Coincident", 8, 2, 9, 1),
    Sketcher.Constraint("Coincident", 9, 2, 10, 1),
    Sketcher.Constraint("Coincident", 10, 2, 11, 1),
    Sketcher.Constraint("Coincident", 11, 2, 8, 1),
    Sketcher.Constraint("Coincident", 12, 2, 13, 1),
    Sketcher.Constraint("Coincident", 13, 2, 14, 1),
    Sketcher.Constraint("Coincident", 14, 2, 15, 1),
    Sketcher.Constraint("Coincident", 15, 2, 12, 1),
    Sketcher.Constraint("Vertical", 0),
    Sketcher.Constraint("Horizontal", 1),
    Sketcher.Constraint("Vertical", 2),
    Sketcher.Constraint("Horizontal", 3),
    Sketcher.Constraint("Vertical", 4),
    Sketcher.Constraint("Horizontal", 5),
    Sketcher.Constraint("Vertical", 6),
    Sketcher.Constraint("Horizontal", 7),
    Sketcher.Constraint("Vertical", 8),
    Sketcher.Constraint("Horizontal", 9),
    Sketcher.Constraint("Vertical", 10),
    Sketcher.Constraint("Horizontal", 11),
    Sketcher.Constraint("Vertical", 12),
    Sketcher.Constraint("Horizontal", 13),
    Sketcher.Constraint("Vertical", 14),
    Sketcher.Constraint("Horizontal", 15),
    Sketcher.Constraint("Symmetric", 2, 2, 8, 2, -1, 1),
    Sketcher.Constraint("Symmetric", 0, 2, 10, 2, -1, 1),
    Sketcher.Constraint("Symmetric", 6, 2, 12, 2, -1, 1),
    Sketcher.Constraint("Symmetric", 4, 2, 14, 2, -1, 1),
    Sketcher.Constraint("Symmetric", 5, 2, 8, 2, -2),
    Sketcher.Constraint("Symmetric", 7, 2, 10, 2, -2),
    Sketcher.Constraint("Equal", 15, 0),
    Sketcher.Constraint("DistanceX", 1, 1, 1, 2, Q("3 mm")),
    Sketcher.Constraint("DistanceX", 0, 2, -1, 1, Q("28 mm")),
    Sketcher.Constraint("DistanceY", -1, 1, 0, 2, Q("16 mm")),
])
pad7 = body.newObject("PartDesign::Pad", "Pad006")
pad7.Profile = sketch7
pad7.Length = 15
pad7.Reversed = True

# Sketch on XZ plane
sketch8 = body.newObject("Sketcher::SketchObject", "Sketch007")
sketch8.AttachmentSupport = (doc.getObject("XZ_Plane"), [""])
sketch8.MapMode = "FlatFace"
sketch8.AttachmentOffset = App.Placement(V(0, 0, -58), App.Rotation())
sketch8.addGeometry([
    Part.LineSegment(V(28, 16, 0), V(28, -16, 0)),  # 0
    Part.LineSegment(V(28, -16, 0), V(-28, -16, 0)),  # 1
    Part.LineSegment(V(-28, -16, 0), V(-28, 16, 0)),  # 2
    Part.LineSegment(V(-28, 16, 0), V(28, 16, 0)),  # 3
    Part.LineSegment(V(-25, 13, 0), V(-25, -13, 0)),  # 4
    Part.LineSegment(V(-25, -13, 0), V(-16, -13, 0)),  # 5
    Part.LineSegment(V(-16, -13, 0), V(-16, 13, 0)),  # 6
    Part.LineSegment(V(-16, 13, 0), V(-25, 13, 0)),  # 7
    Part.LineSegment(V(10, 13, 0), V(-10, 13, 0)),  # 8
    Part.LineSegment(V(-10, 13, 0), V(-10, -13, 0)),  # 9
    Part.LineSegment(V(-10, -13, 0), V(10, -13, 0)),  # 10
    Part.LineSegment(V(10, -13, 0), V(10, 13, 0)),  # 11
    Part.LineSegment(V(25, 13, 0), V(16, 13, 0)),  # 12
    Part.LineSegment(V(16, 13, 0), V(16, -13, 0)),  # 13
    Part.LineSegment(V(16, -13, 0), V(25, -13, 0)),  # 14
    Part.LineSegment(V(25, -13, 0), V(25, 13, 0)),  # 15
], False)
sketch8.addConstraint([
    Sketcher.Constraint("Coincident", 0, 2, 1, 1),
    Sketcher.Constraint("Coincident", 1, 2, 2, 1),
    Sketcher.Constraint("Coincident", 2, 2, 3, 1),
    Sketcher.Constraint("Coincident", 3, 2, 0, 1),
    Sketcher.Constraint("Coincident", 4, 2, 5, 1),
    Sketcher.Constraint("Coincident", 5, 2, 6, 1),
    Sketcher.Constraint("Coincident", 6, 2, 7, 1),
    Sketcher.Constraint("Coincident", 7, 2, 4, 1),
    Sketcher.Constraint("Coincident", 8, 2, 9, 1),
    Sketcher.Constraint("Coincident", 9, 2, 10, 1),
    Sketcher.Constraint("Coincident", 10, 2, 11, 1),
    Sketcher.Constraint("Coincident", 11, 2, 8, 1),
    Sketcher.Constraint("Coincident", 12, 2, 13, 1),
    Sketcher.Constraint("Coincident", 13, 2, 14, 1),
    Sketcher.Constraint("Coincident", 14, 2, 15, 1),
    Sketcher.Constraint("Coincident", 15, 2, 12, 1),
    Sketcher.Constraint("Vertical", 0),
    Sketcher.Constraint("Horizontal", 1),
    Sketcher.Constraint("Vertical", 2),
    Sketcher.Constraint("Horizontal", 3),
    Sketcher.Constraint("Vertical", 4),
    Sketcher.Constraint("Horizontal", 5),
    Sketcher.Constraint("Vertical", 6),
    Sketcher.Constraint("Horizontal", 7),
    Sketcher.Constraint("Horizontal", 8),
    Sketcher.Constraint("Vertical", 9),
    Sketcher.Constraint("Horizontal", 10),
    Sketcher.Constraint("Vertical", 11),
    Sketcher.Constraint("Horizontal", 12),
    Sketcher.Constraint("Vertical", 13),
    Sketcher.Constraint("Horizontal", 14),
    Sketcher.Constraint("Vertical", 15),
    Sketcher.Constraint("Symmetric", 0, 2, 2, 2, -1, 1),
    Sketcher.Constraint("Symmetric", 8, 2, 10, 2, -1, 1),
    Sketcher.Constraint("Symmetric", 5, 2, 12, 2, -1, 1),
    Sketcher.Constraint("Symmetric", 7, 2, 14, 2, -1, 1),
    Sketcher.Constraint("Horizontal", 7, 2, 8, 2),
    Sketcher.Constraint("Horizontal", 5, 2, 9, 2),
    Sketcher.Constraint("DistanceX", 1, 2, 1, 1, Q("56 mm")),
    Sketcher.Constraint("DistanceX", 8, 2, 8, 1, Q("19 mm")),
    Sketcher.Constraint("DistanceY", 0, 2, 0, 1, Q("32 mm")),
    Sketcher.Constraint("DistanceY", 4, 2, 4, 1, Q("26 mm")),
    Sketcher.Constraint("DistanceX", 5, 1, 5, 2, Q("9.5 mm")),
    Sketcher.Constraint("DistanceX", 4, 2, -1, 1, Q("25 mm")),
])
pad8 = body.newObject("PartDesign::Pad", "Pad007")
pad8.Profile = sketch8
pad8.Length = 3
pad8.Reversed = True

doc.recompute()
